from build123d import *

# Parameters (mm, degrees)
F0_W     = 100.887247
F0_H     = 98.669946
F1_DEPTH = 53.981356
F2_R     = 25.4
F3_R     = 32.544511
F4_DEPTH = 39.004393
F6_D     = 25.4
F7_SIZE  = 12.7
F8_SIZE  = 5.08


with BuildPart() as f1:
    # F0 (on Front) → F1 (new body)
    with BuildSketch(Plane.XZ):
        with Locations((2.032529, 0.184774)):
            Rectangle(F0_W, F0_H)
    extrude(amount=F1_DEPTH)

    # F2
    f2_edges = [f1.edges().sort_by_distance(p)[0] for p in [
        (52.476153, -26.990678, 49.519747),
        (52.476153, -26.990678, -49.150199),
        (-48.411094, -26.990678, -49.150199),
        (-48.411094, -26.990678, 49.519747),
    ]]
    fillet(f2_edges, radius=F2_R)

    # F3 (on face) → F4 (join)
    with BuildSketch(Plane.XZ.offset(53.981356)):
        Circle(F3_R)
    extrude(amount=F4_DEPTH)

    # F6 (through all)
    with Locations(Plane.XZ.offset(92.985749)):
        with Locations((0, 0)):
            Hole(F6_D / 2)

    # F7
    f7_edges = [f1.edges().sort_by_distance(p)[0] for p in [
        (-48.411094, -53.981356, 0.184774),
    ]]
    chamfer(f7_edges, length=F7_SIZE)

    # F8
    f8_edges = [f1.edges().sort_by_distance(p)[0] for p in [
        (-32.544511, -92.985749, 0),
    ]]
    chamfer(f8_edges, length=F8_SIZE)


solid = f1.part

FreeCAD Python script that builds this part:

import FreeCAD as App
import Part
import Sketcher
Q = App.Units.Quantity


def edges_at(feature, points):
    """Names of the edges that pass closest to the given points."""
    edges = feature.Shape.Edges
    near = lambda p: min(range(len(edges)), key=lambda i: edges[i].distToShape(Part.Vertex(*p))[0])
    return sorted({f"Edge{near(p) + 1}" for p in points})

doc = App.newDocument("Part")
body = doc.addObject("PartDesign::Body", "Body")

# Sketch on XZ plane
sketch1 = doc.addObject("Sketcher::SketchObject", "Sketch")
body.addObject(sketch1)
sketch1.AttachmentSupport = (doc.XZ_Plane, [""])
sketch1.MapMode = "FlatFace"
sketch1.addGeometry([
    Part.LineSegment(App.Vector(-48, 50, 0), App.Vector(-48, -49, 0)),
    Part.LineSegment(App.Vector(-48, -49, 0), App.Vector(52, -49, 0)),
    Part.LineSegment(App.Vector(52, -49, 0), App.Vector(52, 50, 0)),
    Part.LineSegment(App.Vector(52, 50, 0), App.Vector(-48, 50, 0)),
], False)
sketch1.addConstraint([
    Sketcher.Constraint("Coincident", 0, 2, 1, 1),
    Sketcher.Constraint("Coincident", 1, 2, 2, 1),
    Sketcher.Constraint("Coincident", 2, 2, 3, 1),
    Sketcher.Constraint("Coincident", 3, 2, 0, 1),
    Sketcher.Constraint("Vertical", 0),
    Sketcher.Constraint("Horizontal", 1),
    Sketcher.Constraint("Vertical", 2),
    Sketcher.Constraint("Horizontal", 3),
    Sketcher.Constraint("DistanceY", 0, 2, -1, 1, Q("49.150199 mm")),
    Sketcher.Constraint("DistanceX", 1, 1, 1, 2, Q("100.887247 mm")),
    Sketcher.Constraint("DistanceY", 0, 2, 0, 1, Q("98.669946 mm")),
    Sketcher.Constraint("DistanceX", 0, 2, -1, 1, Q("48.411094 mm")),
])
pad1 = doc.addObject("PartDesign::Pad", "Pad")
body.addObject(pad1)
pad1.Profile = sketch1
pad1.Length = 53.981356
doc.recompute()

fillet = doc.addObject("PartDesign::Fillet", "Fillet")
body.addObject(fillet)
fillet.Base = (pad1, edges_at(pad1, [
    (52.476, -26.991, 49.52),
    (52.476, -26.991, -49.15),
    (-48.411, -26.991, -49.15),
    (-48.411, -26.991, 49.52),
]))
fillet.Radius = Q("1 in")

# Sketch on XZ plane
sketch2 = doc.addObject("Sketcher::SketchObject", "Sketch001")
body.addObject(sketch2)
sketch2.AttachmentSupport = (doc.XZ_Plane, [""])
sketch2.MapMode = "FlatFace"
sketch2.AttachmentOffset = App.Placement(App.Vector(0, 0, 53.981356), App.Rotation())
sketch2.addGeometry(Part.Circle(App.Vector(0, 0, 0), App.Vector(0, 0, 1), 33), False)
sketch2.addConstraint([
    Sketcher.Constraint("Coincident", 0, 3, -1, 1),
    Sketcher.Constraint("Diameter", 0, Q("65.089022 mm")),
])
pad2 = doc.addObject("PartDesign::Pad", "Pad001")
body.addObject(pad2)
pad2.Profile = sketch2
pad2.Length = 39.004393

# Sketch on XZ plane
sketch3 = doc.addObject("Sketcher::SketchObject", "Sketch002")
body.addObject(sketch3)
sketch3.AttachmentSupport = (doc.XZ_Plane, [""])
sketch3.MapMode = "FlatFace"
sketch3.AttachmentOffset = App.Placement(App.Vector(0, 0, 92.985749), App.Rotation())
sketch3.addGeometry(Part.Circle(App.Vector(0, 0, 0), App.Vector(0, 0, 1), 13), False)
sketch3.addConstraint([
    Sketcher.Constraint("Coincident", 0, 3, -1, 1),
    Sketcher.Constraint("Diameter", 0, Q("1 in")),
])
doc.recompute()
hole = doc.addObject("PartDesign::Hole", "Hole")
body.addObject(hole)
hole.Profile = sketch3
hole.ThreadType = "None"
hole.Diameter = Q("1 in")
hole.DepthType = "ThroughAll"
doc.recompute()

chamfer = doc.addObject("PartDesign::Chamfer", "Chamfer")
body.addObject(chamfer)
chamfer.Base = (hole, edges_at(hole, [(-48.411, -53.981, 0.185)]))
chamfer.Size = Q("0.5 in")
doc.recompute()

chamfer2 = doc.addObject("PartDesign::Chamfer", "Chamfer001")
body.addObject(chamfer2)
chamfer2.Base = (chamfer, edges_at(chamfer, [(-32.545, -92.986, 0)]))
chamfer2.Size = Q("0.2 in")

doc.recompute()
